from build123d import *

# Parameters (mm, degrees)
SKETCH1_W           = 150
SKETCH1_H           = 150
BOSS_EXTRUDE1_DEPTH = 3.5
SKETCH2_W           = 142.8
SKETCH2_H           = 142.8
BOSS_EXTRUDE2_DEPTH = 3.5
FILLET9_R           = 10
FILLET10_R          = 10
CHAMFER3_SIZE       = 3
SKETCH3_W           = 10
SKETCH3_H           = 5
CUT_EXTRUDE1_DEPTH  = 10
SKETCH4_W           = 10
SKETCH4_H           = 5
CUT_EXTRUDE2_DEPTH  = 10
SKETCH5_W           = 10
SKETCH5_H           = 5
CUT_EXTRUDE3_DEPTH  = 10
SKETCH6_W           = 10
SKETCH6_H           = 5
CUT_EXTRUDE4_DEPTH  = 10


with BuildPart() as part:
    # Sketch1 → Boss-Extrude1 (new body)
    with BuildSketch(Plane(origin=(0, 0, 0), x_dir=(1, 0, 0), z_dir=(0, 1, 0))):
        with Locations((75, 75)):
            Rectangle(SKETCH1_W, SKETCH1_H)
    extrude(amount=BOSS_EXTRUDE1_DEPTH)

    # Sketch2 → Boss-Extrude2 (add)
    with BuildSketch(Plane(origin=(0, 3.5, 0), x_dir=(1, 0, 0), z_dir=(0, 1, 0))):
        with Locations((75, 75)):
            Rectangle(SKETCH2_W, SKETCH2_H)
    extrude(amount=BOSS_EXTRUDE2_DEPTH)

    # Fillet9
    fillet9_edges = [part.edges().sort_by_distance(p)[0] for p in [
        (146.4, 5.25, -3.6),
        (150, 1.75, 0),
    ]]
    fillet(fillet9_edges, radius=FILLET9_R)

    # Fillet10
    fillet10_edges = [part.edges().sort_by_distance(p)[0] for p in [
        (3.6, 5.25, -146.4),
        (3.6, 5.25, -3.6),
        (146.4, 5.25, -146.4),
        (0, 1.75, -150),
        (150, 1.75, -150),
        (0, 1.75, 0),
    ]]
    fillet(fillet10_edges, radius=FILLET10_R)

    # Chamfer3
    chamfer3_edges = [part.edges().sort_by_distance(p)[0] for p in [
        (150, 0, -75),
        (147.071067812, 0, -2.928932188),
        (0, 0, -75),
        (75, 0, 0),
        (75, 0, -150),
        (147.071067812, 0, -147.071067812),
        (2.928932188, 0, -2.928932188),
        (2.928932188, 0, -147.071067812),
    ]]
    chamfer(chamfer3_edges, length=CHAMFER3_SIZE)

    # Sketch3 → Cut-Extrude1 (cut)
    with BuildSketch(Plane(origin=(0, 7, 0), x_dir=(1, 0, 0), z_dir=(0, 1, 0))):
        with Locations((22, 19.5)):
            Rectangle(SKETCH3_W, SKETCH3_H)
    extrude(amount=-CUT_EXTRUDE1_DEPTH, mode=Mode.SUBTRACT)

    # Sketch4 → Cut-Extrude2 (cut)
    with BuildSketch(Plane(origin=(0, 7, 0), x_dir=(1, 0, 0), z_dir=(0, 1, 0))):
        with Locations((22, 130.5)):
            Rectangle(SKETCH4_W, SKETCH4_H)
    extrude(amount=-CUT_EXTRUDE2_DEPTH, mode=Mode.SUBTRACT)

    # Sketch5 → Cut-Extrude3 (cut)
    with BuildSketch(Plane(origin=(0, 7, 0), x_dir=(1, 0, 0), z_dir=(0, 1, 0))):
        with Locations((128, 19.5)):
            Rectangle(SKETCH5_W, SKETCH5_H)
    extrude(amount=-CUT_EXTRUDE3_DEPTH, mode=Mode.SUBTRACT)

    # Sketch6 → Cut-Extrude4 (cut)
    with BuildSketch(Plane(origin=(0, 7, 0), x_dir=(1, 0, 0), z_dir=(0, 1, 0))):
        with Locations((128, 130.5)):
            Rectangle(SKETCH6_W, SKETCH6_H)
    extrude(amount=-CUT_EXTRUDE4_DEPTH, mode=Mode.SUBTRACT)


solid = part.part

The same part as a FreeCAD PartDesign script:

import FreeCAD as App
import Part
import Sketcher
from FreeCAD import Vector


def edges_at(feature, points):
    """Names of the edges that pass closest to the given points."""
    edges = feature.Shape.Edges
    near = lambda p: min(range(len(edges)), key=lambda i: edges[i].distToShape(Part.Vertex(*p))[0])
    return sorted({f"Edge{near(p) + 1}" for p in points})

doc = App.newDocument("Part")
params = doc.addObject("Spreadsheet::Sheet", "Params")
for row, (alias, value) in enumerate([
    ("sketch1_width", "150 mm"),
    ("pad1_length", "3.5 mm"),
    ("sketch2_width", "142.8 mm"),
    ("pad2_length", "3.5 mm"),
    ("fillet_radius", "10 mm"),
    ("fillet2_radius", "10 mm"),
    ("chamfer_size", "3 mm"),
    ("sketch3_width", "10 mm"),
    ("sketch3_height", "5 mm"),
    ("pocket1_length", "10 mm"),
    ("sketch4_width", "10 mm"),
    ("sketch4_height", "5 mm"),
    ("pocket2_length", "10 mm"),
    ("sketch5_width", "10 mm"),
    ("sketch5_height", "5 mm"),
    ("pocket3_length", "10 mm"),
    ("sketch6_width", "10 mm"),
    ("sketch6_height", "5 mm"),
    ("pocket4_length", "10 mm"),
], start=1):
    params.set(f"A{row}", alias)
    params.set(f"B{row}", "=" + value)
    params.setAlias(f"B{row}", alias)

body = doc.addObject("PartDesign::Body", "Body")

# Sketch on XZ plane
sketch1 = body.newObject("Sketcher::SketchObject", "Sketch")
sketch1.AttachmentSupport = (doc.getObject("XZ_Plane"), [""])
sketch1.MapMode = "FlatFace"
sketch1.addGeometry([
    Part.LineSegment(Vector(0, -150, 0), Vector(0, 0, 0)),
    Part.LineSegment(Vector(0, 0, 0), Vector(150, 0, 0)),
    Part.LineSegment(Vector(150, 0, 0), Vector(150, -150, 0)),
    Part.LineSegment(Vector(150, -150, 0), Vector(0, -150, 0)),
], False)
sketch1.addConstraint([
    Sketcher.Constraint("Coincident", 0, 2, 1, 1),
    Sketcher.Constraint("Coincident", 1, 2, 2, 1),
    Sketcher.Constraint("Coincident", 2, 2, 3, 1),
    Sketcher.Constraint("Coincident", 3, 2, 0, 1),
    Sketcher.Constraint("Vertical", 0),
    Sketcher.Constraint("Horizontal", 1),
    Sketcher.Constraint("Vertical", 2),
    Sketcher.Constraint("Horizontal", 3),
    Sketcher.Constraint("Coincident", 0, 2, -1, 1),
    Sketcher.Constraint("Equal", 3, 0),
    Sketcher.Constraint("DistanceX", 1, 1, 1, 2, 150.0),
])
sketch1.setExpression("Constraints[10]", "Params.sketch1_width")
pad1 = body.newObject("PartDesign::Pad", "Pad")
pad1.Profile = sketch1
pad1.setExpression("Length", "Params.pad1_length")
pad1.Reversed = True

# Sketch on XZ plane
sketch2 = body.newObject("Sketcher::SketchObject", "Sketch001")
sketch2.AttachmentSupport = (doc.getObject("XZ_Plane"), [""])
sketch2.MapMode = "FlatFace"
sketch2.AttachmentOffset = App.Placement(Vector(0, 0, -3.5), App.Rotation())
sketch2.addGeometry([
    Part.LineSegment(Vector(4, -146, 0), Vector(4, -4, 0)),
    Part.LineSegment(Vector(4, -4, 0), Vector(146, -4, 0)),
    Part.LineSegment(Vector(146, -4, 0), Vector(146, -146, 0)),
    Part.LineSegment(Vector(146, -146, 0), Vector(4, -146, 0)),
], False)
sketch2.addConstraint([
    Sketcher.Constraint("Coincident", 0, 2, 1, 1),
    Sketcher.Constraint("Coincident", 1, 2, 2, 1),
    Sketcher.Constraint("Coincident", 2, 2, 3, 1),
    Sketcher.Constraint("Coincident", 3, 2, 0, 1),
    Sketcher.Constraint("Vertical", 0),
    Sketcher.Constraint("Horizontal", 1),
    Sketcher.Constraint("Vertical", 2),
    Sketcher.Constraint("Horizontal", 3),
    Sketcher.Constraint("Equal", 3, 0),
    Sketcher.Constraint("DistanceX", 1, 1, 1, 2, 142.8),
    Sketcher.Constraint("DistanceX", -1, 1, 0, 2, 3.6),
    Sketcher.Constraint("DistanceY", 0, 2, -1, 1, 3.6),
])
sketch2.setExpression("Constraints[9]", "Params.sketch2_width")
pad2 = body.newObject("PartDesign::Pad", "Pad001")
pad2.Profile = sketch2
pad2.setExpression("Length", "Params.pad2_length")
pad2.Reversed = True
doc.recompute()

fillet = body.newObject("PartDesign::Fillet", "Fillet")
fillet.Base = (pad2, edges_at(pad2, [(146.4, 5.25, -3.6), (150, 1.75, 0)]))
fillet.setExpression("Radius", "Params.fillet_radius")
doc.recompute()

fillet2 = body.newObject("PartDesign::Fillet", "Fillet001")
fillet2.Base = (fillet, edges_at(fillet, [
    (3.6, 5.25, -146.4),
    (3.6, 5.25, -3.6),
    (146.4, 5.25, -146.4),
    (0, 1.75, -150),
    (150, 1.75, -150),
    (0, 1.75, 0),
]))
fillet2.setExpression("Radius", "Params.fillet2_radius")
doc.recompute()

chamfer = body.newObject("PartDesign::Chamfer", "Chamfer")
chamfer.Base = (fillet2, edges_at(fillet2, [
    (150, 0, -75),
    (147.071, 0, -2.929),
    (0, 0, -75),
    (75, 0, 0),
    (75, 0, -150),
    (147.071, 0, -147.071),
    (2.929, 0, -2.929),
    (2.929, 0, -147.071),
]))
chamfer.setExpression("Size", "Params.chamfer_size")

# Sketch on XZ plane
sketch3 = body.newObject("Sketcher::SketchObject", "Sketch002")
sketch3.AttachmentSupport = (doc.getObject("XZ_Plane"), [""])
sketch3.MapMode = "FlatFace"
sketch3.AttachmentOffset = App.Placement(Vector(0, 0, -7), App.Rotation())
sketch3.addGeometry([
    Part.LineSegment(Vector(17, -22, 0), Vector(17, -17, 0)),
    Part.LineSegment(Vector(17, -17, 0), Vector(27, -17, 0)),
    Part.LineSegment(Vector(27, -17, 0), Vector(27, -22, 0)),
    Part.LineSegment(Vector(27, -22, 0), Vector(17, -22, 0)),
], False)
sketch3.addConstraint([
    Sketcher.Constraint("Coincident", 0, 2, 1, 1),
    Sketcher.Constraint("Coincident", 1, 2, 2, 1),
    Sketcher.Constraint("Coincident", 2, 2, 3, 1),
    Sketcher.Constraint("Coincident", 3, 2, 0, 1),
    Sketcher.Constraint("Vertical", 0),
    Sketcher.Constraint("Horizontal", 1),
    Sketcher.Constraint("Vertical", 2),
    Sketcher.Constraint("Horizontal", 3),
    Sketcher.Constraint("DistanceX", 1, 1, 1, 2, 10.0),
    Sketcher.Constraint("DistanceY", 0, 1, 0, 2, 5.0),
    Sketcher.Constraint("DistanceX", -1, 1, 0, 2, 17.0),
    Sketcher.Constraint("DistanceY", 0, 2, -1, 1, 17.0),
])
sketch3.setExpression("Constraints[8]", "Params.sketch3_width")
sketch3.setExpression("Constraints[9]", "Params.sketch3_height")
pocket1 = body.newObject("PartDesign::Pocket", "Pocket")
pocket1.Profile = sketch3
pocket1.setExpression("Length", "Params.pocket1_length")
pocket1.Reversed = True

# Sketch on XZ plane
sketch4 = body.newObject("Sketcher::SketchObject", "Sketch003")
sketch4.AttachmentSupport = (doc.getObject("XZ_Plane"), [""])
sketch4.MapMode = "FlatFace"
sketch4.AttachmentOffset = App.Placement(Vector(0, 0, -7), App.Rotation())
sketch4.addGeometry([
    Part.LineSegment(Vector(17, -133, 0), Vector(17, -128, 0)),
    Part.LineSegment(Vector(17, -128, 0), Vector(27, -128, 0)),
    Part.LineSegment(Vector(27, -128, 0), Vector(27, -133, 0)),
    Part.LineSegment(Vector(27, -133, 0), Vector(17, -133, 0)),
], False)
sketch4.addConstraint([
    Sketcher.Constraint("Coincident", 0, 2, 1, 1),
    Sketcher.Constraint("Coincident", 1, 2, 2, 1),
    Sketcher.Constraint("Coincident", 2, 2, 3, 1),
    Sketcher.Constraint("Coincident", 3, 2, 0, 1),
    Sketcher.Constraint("Vertical", 0),
    Sketcher.Constraint("Horizontal", 1),
    Sketcher.Constraint("Vertical", 2),
    Sketcher.Constraint("Horizontal", 3),
    Sketcher.Constraint("DistanceX", 1, 1, 1, 2, 10.0),
    Sketcher.Constraint("DistanceY", 0, 1, 0, 2, 5.0),
    Sketcher.Constraint("DistanceX", -1, 1, 0, 2, 17.0),
    Sketcher.Constraint("DistanceY", 0, 2, -1, 1, 128.0),
])
sketch4.setExpression("Constraints[8]", "Params.sketch4_width")
sketch4.setExpression("Constraints[9]", "Params.sketch4_height")
pocket2 = body.newObject("PartDesign::Pocket", "Pocket001")
pocket2.Profile = sketch4
pocket2.setExpression("Length", "Params.pocket2_length")
pocket2.Reversed = True

# Sketch on XZ plane
sketch5 = body.newObject("Sketcher::SketchObject", "Sketch004")
sketch5.AttachmentSupport = (doc.getObject("XZ_Plane"), [""])
sketch5.MapMode = "FlatFace"
sketch5.AttachmentOffset = App.Placement(Vector(0, 0, -7), App.Rotation())
sketch5.addGeometry([
    Part.LineSegment(Vector(123, -22, 0), Vector(123, -17, 0)),
    Part.LineSegment(Vector(123, -17, 0), Vector(133, -17, 0)),
    Part.LineSegment(Vector(133, -17, 0), Vector(133, -22, 0)),
    Part.LineSegment(Vector(133, -22, 0), Vector(123, -22, 0)),
], False)
sketch5.addConstraint([
    Sketcher.Constraint("Coincident", 0, 2, 1, 1),
    Sketcher.Constraint("Coincident", 1, 2, 2, 1),
    Sketcher.Constraint("Coincident", 2, 2, 3, 1),
    Sketcher.Constraint("Coincident", 3, 2, 0, 1),
    Sketcher.Constraint("Vertical", 0),
    Sketcher.Constraint("Horizontal", 1),
    Sketcher.Constraint("Vertical", 2),
    Sketcher.Constraint("Horizontal", 3),
    Sketcher.Constraint("DistanceX", 1, 1, 1, 2, 10.0),
    Sketcher.Constraint("DistanceY", 0, 1, 0, 2, 5.0),
    Sketcher.Constraint("DistanceX", -1, 1, 0, 2, 123.0),
    Sketcher.Constraint("DistanceY", 0, 2, -1, 1, 17.0),
])
sketch5.setExpression("Constraints[8]", "Params.sketch5_width")
sketch5.setExpression("Constraints[9]", "Params.sketch5_height")
pocket3 = body.newObject("PartDesign::Pocket", "Pocket002")
pocket3.Profile = sketch5
pocket3.setExpression("Length", "Params.pocket3_length")
pocket3.Reversed = True

# Sketch on XZ plane
sketch6 = body.newObject("Sketcher::SketchObject", "Sketch005")
sketch6.AttachmentSupport = (doc.getObject("XZ_Plane"), [""])
sketch6.MapMode = "FlatFace"
sketch6.AttachmentOffset = App.Placement(Vector(0, 0, -7), App.Rotation())
sketch6.addGeometry([
    Part.LineSegment(Vector(123, -133, 0), Vector(123, -128, 0)),
    Part.LineSegment(Vector(123, -128, 0), Vector(133, -128, 0)),
    Part.LineSegment(Vector(133, -128, 0), Vector(133, -133, 0)),
    Part.LineSegment(Vector(133, -133, 0), Vector(123, -133, 0)),
], False)
sketch6.addConstraint([
    Sketcher.Constraint("Coincident", 0, 2, 1, 1),
    Sketcher.Constraint("Coincident", 1, 2, 2, 1),
    Sketcher.Constraint("Coincident", 2, 2, 3, 1),
    Sketcher.Constraint("Coincident", 3, 2, 0, 1),
    Sketcher.Constraint("Vertical", 0),
    Sketcher.Constraint("Horizontal", 1),
    Sketcher.Constraint("Vertical", 2),
    Sketcher.Constraint("Horizontal", 3),
    Sketcher.Constraint("DistanceX", 1, 1, 1, 2, 10.0),
    Sketcher.Constraint("DistanceY", 0, 1, 0, 2, 5.0),
    Sketcher.Constraint("DistanceX", -1, 1, 0, 2, 123.0),
    Sketcher.Constraint("DistanceY", 0, 2, -1, 1, 128.0),
])
sketch6.setExpression("Constraints[8]", "Params.sketch6_width")
sketch6.setExpression("Constraints[9]", "Params.sketch6_height")
pocket4 = body.newObject("PartDesign::Pocket", "Pocket003")
pocket4.Profile = sketch6
pocket4.setExpression("Length", "Params.pocket4_length")
pocket4.Reversed = True

doc.recompute()
